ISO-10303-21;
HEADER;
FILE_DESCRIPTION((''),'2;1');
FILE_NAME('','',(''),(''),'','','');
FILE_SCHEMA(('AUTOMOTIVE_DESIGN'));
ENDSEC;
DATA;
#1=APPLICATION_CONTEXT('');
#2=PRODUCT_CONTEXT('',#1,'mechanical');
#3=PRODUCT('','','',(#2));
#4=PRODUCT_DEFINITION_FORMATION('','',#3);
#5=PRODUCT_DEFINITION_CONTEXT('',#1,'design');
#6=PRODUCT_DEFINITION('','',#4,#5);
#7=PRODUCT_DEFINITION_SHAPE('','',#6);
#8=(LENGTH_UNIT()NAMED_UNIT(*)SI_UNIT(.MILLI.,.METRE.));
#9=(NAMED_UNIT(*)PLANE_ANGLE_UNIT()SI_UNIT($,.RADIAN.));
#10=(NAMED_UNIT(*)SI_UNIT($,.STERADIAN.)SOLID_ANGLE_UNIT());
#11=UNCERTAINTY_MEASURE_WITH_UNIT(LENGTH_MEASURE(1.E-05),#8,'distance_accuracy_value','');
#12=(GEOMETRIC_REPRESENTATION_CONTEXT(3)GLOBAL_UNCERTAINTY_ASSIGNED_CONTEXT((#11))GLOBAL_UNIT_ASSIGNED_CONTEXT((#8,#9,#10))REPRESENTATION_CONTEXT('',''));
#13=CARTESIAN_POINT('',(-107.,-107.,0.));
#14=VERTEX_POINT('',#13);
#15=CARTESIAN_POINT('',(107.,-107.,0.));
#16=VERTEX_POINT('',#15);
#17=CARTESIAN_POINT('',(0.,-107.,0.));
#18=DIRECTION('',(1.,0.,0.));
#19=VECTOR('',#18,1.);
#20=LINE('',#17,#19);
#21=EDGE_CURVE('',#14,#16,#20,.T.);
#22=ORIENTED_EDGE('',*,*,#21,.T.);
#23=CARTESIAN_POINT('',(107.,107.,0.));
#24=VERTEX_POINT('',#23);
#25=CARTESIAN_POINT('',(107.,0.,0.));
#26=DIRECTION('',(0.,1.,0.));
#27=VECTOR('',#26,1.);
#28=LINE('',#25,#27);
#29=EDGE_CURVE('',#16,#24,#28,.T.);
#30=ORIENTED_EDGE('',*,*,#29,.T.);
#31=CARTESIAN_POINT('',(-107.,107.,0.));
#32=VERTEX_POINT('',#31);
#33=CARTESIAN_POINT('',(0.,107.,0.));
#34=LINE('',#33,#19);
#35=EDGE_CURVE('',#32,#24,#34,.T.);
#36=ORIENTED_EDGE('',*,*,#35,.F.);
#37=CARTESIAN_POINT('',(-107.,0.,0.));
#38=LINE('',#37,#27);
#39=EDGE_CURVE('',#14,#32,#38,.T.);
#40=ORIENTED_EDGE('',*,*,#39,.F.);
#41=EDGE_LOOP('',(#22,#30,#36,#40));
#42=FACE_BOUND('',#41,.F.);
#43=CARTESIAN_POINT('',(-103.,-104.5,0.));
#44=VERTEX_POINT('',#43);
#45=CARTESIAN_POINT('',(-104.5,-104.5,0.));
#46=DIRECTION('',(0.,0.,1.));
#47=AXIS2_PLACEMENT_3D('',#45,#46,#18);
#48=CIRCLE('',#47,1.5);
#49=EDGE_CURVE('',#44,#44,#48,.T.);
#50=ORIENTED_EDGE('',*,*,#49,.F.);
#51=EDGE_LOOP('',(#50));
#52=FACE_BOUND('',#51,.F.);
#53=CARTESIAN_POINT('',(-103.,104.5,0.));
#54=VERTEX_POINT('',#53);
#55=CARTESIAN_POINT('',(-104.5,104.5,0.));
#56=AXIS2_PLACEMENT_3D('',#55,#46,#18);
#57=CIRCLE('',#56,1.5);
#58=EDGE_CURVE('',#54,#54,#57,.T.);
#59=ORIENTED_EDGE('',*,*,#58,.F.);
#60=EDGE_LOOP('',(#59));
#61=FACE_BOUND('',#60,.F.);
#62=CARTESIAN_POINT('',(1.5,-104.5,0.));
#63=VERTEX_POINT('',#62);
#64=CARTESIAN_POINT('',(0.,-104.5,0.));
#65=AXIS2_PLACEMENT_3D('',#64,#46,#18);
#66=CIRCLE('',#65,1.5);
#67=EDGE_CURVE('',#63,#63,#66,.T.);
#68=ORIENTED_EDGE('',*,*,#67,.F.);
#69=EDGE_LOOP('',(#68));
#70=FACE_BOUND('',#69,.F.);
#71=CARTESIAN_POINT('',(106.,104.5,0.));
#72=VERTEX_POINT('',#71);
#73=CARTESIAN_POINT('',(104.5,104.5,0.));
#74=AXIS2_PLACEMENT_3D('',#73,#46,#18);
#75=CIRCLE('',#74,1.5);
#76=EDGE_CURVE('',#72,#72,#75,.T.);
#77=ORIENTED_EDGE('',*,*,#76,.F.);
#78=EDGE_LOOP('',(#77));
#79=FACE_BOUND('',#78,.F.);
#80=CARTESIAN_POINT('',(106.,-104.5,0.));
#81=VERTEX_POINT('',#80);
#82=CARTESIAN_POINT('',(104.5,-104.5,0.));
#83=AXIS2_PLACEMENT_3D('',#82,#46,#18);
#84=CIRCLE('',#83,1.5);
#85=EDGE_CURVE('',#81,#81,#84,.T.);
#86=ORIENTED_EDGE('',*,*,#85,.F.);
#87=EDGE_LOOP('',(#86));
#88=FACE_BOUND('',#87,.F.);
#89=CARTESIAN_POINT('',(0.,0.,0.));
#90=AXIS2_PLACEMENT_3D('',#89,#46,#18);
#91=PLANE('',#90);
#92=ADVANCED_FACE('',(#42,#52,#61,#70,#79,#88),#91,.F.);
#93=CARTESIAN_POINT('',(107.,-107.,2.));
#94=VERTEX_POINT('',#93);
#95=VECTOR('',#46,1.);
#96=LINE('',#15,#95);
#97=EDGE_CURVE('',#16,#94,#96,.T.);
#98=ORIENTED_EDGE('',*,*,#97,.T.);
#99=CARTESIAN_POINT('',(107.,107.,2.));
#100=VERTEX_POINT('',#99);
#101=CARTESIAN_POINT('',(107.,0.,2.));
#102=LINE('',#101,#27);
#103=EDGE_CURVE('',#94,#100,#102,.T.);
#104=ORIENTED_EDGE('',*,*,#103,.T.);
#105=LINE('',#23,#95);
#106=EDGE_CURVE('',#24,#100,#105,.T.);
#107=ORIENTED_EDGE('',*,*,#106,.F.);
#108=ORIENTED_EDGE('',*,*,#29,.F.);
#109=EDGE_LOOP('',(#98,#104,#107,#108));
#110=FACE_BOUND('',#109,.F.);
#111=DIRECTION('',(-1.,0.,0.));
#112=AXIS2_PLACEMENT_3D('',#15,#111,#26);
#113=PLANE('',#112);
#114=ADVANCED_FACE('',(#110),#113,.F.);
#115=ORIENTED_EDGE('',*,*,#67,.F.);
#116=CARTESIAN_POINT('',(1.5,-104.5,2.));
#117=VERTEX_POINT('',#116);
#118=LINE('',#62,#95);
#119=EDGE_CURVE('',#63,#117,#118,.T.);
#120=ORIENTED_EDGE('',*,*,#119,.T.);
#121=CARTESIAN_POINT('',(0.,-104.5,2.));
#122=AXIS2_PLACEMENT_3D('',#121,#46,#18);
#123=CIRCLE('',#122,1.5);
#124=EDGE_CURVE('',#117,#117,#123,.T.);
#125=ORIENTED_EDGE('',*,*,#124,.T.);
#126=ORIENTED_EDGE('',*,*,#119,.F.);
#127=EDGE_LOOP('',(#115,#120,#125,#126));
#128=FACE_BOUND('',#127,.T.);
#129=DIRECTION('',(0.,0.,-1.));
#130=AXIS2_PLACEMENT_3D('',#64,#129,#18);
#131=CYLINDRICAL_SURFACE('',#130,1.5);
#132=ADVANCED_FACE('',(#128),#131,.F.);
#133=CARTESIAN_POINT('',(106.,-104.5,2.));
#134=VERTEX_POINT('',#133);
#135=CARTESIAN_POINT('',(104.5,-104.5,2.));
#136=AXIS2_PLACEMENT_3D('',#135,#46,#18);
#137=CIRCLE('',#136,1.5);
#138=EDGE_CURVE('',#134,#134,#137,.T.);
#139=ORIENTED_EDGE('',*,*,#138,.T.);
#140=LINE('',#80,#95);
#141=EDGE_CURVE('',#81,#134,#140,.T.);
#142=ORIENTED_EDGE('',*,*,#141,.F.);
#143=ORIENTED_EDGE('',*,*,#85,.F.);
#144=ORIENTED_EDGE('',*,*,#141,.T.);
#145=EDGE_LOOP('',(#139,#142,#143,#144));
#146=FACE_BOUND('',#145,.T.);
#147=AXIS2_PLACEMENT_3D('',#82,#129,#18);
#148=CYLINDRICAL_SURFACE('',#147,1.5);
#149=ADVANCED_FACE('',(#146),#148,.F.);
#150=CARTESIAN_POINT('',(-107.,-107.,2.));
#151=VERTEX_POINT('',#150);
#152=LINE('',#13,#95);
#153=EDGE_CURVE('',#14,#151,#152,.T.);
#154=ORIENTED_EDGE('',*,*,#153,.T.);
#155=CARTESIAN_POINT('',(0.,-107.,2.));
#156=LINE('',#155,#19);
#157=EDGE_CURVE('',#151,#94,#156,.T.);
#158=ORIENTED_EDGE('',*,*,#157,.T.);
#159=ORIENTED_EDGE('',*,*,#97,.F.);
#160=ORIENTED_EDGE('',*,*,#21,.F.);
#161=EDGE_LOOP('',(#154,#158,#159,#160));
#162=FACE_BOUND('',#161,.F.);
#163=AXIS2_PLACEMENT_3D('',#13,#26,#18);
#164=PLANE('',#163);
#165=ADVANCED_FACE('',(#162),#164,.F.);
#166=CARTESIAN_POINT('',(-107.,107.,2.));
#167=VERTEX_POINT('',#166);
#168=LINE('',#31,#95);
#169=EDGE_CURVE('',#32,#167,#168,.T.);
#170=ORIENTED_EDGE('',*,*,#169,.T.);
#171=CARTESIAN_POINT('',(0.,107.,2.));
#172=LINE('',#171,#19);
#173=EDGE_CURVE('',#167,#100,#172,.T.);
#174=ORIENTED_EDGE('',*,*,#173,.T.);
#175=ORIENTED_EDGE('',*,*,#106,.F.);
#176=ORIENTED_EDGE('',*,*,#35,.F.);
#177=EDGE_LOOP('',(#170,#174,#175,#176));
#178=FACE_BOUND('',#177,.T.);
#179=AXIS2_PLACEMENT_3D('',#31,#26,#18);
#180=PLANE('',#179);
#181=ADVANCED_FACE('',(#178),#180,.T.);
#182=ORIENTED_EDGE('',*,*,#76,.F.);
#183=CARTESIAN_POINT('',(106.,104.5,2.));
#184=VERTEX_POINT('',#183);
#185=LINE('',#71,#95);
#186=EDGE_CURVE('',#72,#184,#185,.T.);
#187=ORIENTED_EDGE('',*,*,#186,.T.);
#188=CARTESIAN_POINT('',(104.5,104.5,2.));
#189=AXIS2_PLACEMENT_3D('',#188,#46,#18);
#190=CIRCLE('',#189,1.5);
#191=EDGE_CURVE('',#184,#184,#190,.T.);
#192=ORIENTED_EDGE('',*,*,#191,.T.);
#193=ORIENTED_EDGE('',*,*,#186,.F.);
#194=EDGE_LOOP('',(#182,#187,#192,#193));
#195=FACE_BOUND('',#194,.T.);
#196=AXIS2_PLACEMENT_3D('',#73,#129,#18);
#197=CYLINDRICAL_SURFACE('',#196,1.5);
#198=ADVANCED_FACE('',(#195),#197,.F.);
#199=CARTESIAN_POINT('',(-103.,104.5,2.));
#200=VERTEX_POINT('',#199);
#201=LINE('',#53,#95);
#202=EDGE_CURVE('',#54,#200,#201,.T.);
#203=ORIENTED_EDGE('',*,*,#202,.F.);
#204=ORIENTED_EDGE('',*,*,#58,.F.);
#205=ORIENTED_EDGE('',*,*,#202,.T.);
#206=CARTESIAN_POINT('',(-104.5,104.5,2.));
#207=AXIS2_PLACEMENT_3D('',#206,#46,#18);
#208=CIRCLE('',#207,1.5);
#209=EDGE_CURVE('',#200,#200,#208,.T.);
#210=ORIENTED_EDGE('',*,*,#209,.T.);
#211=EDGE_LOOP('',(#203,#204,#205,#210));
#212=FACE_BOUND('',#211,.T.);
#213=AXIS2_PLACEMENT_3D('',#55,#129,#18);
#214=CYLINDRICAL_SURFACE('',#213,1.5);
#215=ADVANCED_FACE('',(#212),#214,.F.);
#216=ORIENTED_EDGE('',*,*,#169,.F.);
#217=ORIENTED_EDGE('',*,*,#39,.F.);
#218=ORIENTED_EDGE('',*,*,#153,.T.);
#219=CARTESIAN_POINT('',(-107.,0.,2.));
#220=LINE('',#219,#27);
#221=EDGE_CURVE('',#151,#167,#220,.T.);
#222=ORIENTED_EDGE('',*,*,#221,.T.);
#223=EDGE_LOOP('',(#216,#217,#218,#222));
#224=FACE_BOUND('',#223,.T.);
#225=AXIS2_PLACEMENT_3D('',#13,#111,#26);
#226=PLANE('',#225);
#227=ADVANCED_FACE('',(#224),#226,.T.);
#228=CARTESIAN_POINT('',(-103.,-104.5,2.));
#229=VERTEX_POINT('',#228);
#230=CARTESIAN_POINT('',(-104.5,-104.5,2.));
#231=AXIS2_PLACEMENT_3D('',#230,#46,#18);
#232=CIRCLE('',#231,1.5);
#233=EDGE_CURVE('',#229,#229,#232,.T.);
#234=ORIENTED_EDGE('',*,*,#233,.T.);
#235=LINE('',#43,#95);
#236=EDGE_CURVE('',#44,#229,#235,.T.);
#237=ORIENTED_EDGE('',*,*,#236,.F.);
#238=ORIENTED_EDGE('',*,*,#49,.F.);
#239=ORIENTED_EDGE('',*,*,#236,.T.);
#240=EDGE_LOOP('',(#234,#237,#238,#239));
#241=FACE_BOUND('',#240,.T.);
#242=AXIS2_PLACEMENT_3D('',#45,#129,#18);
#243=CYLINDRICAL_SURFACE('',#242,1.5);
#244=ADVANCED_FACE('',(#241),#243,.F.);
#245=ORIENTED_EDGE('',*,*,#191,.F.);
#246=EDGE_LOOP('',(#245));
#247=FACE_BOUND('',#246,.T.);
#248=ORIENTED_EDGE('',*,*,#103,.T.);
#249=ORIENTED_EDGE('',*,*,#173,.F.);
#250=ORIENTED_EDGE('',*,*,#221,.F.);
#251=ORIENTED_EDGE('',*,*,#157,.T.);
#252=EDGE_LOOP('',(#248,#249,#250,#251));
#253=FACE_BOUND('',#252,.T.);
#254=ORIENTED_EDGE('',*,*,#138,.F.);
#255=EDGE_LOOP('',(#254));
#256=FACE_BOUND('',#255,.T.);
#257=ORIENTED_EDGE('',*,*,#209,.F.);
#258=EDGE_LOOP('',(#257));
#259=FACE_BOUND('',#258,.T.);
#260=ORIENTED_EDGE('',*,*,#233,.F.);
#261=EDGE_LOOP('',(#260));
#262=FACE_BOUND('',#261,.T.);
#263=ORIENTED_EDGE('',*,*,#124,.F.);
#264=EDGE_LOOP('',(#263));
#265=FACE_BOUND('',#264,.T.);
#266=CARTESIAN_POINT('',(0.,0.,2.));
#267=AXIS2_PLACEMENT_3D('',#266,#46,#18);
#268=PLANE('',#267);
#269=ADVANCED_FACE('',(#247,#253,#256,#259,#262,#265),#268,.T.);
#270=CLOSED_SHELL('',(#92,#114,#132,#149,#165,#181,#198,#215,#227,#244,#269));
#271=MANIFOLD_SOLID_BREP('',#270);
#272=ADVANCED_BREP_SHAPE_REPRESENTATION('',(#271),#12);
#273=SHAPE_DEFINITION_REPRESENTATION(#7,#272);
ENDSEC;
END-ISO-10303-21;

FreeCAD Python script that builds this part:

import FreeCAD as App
import Part
import Sketcher


def add_polygon(sketch, points):
    """Adds a closed chain of lines whose ends are joined by coincident constraints."""
    first, n = sketch.GeometryCount, len(points)
    for a, b in zip(points, points[1:] + points[:1]):
        sketch.addGeometry(Part.LineSegment(App.Vector(*a, 0), App.Vector(*b, 0)), False)
    for i in range(n):
        sketch.addConstraint(Sketcher.Constraint("Coincident", first + i, 2, first + (i + 1) % n, 1))

doc = App.newDocument("Part")
params = doc.addObject("Spreadsheet::Sheet", "Params")
for row, (alias, value) in enumerate([
    ("sketch1_diameter", "3 mm"),
    ("sketch1_width", "214 mm"),
    ("pad1_length", "2 mm"),
], start=1):
    params.set(f"A{row}", alias)
    params.set(f"B{row}", "=" + value)
    params.setAlias(f"B{row}", alias)

body = doc.addObject("PartDesign::Body", "Body")

# Sketch on XY plane
sketch1 = doc.addObject("Sketcher::SketchObject", "Sketch")
body.addObject(sketch1)
sketch1.AttachmentSupport = (doc.XY_Plane, [""])
sketch1.MapMode = "FlatFace"
add_polygon(sketch1, [(-107, 107), (-107, -107), (107, -107), (107, 107)])  # lines 0-3
sketch1.addGeometry(Part.Circle(App.Vector(-104.5, -104.5, 0), App.Vector(0, 0, 1), 1.5), False)  # 4
sketch1.addGeometry(Part.Circle(App.Vector(0, -104.5, 0), App.Vector(0, 0, 1), 1.5), False)  # 5
sketch1.addGeometry(Part.Circle(App.Vector(104.5, -104.5, 0), App.Vector(0, 0, 1), 1.5), False)  # 6
sketch1.addGeometry(Part.Circle(App.Vector(-104.5, 104.5, 0), App.Vector(0, 0, 1), 1.5), False)  # 7
sketch1.addGeometry(Part.Circle(App.Vector(104.5, 104.5, 0), App.Vector(0, 0, 1), 1.5), False)  # 8
sketch1.addConstraint(Sketcher.Constraint("Vertical", 0))
sketch1.addConstraint(Sketcher.Constraint("Horizontal", 1))
sketch1.addConstraint(Sketcher.Constraint("Vertical", 2))
sketch1.addConstraint(Sketcher.Constraint("Horizontal", 3))
sketch1.addConstraint(Sketcher.Constraint("Equal", 4, 5))
sketch1.addConstraint(Sketcher.Constraint("Equal", 5, 6))
sketch1.addConstraint(Sketcher.Constraint("Equal", 6, 7))
sketch1.addConstraint(Sketcher.Constraint("Equal", 7, 8))
sketch1.addConstraint(Sketcher.Constraint("Symmetric", 6, 3, 7, 3, -1, 1))
sketch1.addConstraint(Sketcher.Constraint("Symmetric", 4, 3, 8, 3, -1, 1))
sketch1.addConstraint(Sketcher.Constraint("Symmetric", 0, 2, 2, 2, -1, 1))
sketch1.addConstraint(Sketcher.Constraint("Symmetric", 4, 3, 6, 3, -2))
sketch1.addConstraint(Sketcher.Constraint("PointOnObject", 5, 3, -2))
sketch1.addConstraint(Sketcher.Constraint("Horizontal", 4, 3, 5, 3))
sketch1.addConstraint(Sketcher.Constraint("Equal", 3, 0))
sketch1.addConstraint(Sketcher.Constraint("Diameter", 4, 3.0))
sketch1.addConstraint(Sketcher.Constraint("DistanceX", 1, 1, 1, 2, 214.0))
sketch1.addConstraint(Sketcher.Constraint("DistanceX", 4, 3, 6, 3, 209.0))
sketch1.addConstraint(Sketcher.Constraint("DistanceY", 4, 3, 7, 3, 209.0))
sketch1.setExpression("Constraints[19]", "Params.sketch1_diameter")
sketch1.setExpression("Constraints[20]", "Params.sketch1_width")
pad1 = doc.addObject("PartDesign::Pad", "Pad")
body.addObject(pad1)
pad1.Profile = sketch1
pad1.setExpression("Length", "Params.pad1_length")

doc.recompute()
